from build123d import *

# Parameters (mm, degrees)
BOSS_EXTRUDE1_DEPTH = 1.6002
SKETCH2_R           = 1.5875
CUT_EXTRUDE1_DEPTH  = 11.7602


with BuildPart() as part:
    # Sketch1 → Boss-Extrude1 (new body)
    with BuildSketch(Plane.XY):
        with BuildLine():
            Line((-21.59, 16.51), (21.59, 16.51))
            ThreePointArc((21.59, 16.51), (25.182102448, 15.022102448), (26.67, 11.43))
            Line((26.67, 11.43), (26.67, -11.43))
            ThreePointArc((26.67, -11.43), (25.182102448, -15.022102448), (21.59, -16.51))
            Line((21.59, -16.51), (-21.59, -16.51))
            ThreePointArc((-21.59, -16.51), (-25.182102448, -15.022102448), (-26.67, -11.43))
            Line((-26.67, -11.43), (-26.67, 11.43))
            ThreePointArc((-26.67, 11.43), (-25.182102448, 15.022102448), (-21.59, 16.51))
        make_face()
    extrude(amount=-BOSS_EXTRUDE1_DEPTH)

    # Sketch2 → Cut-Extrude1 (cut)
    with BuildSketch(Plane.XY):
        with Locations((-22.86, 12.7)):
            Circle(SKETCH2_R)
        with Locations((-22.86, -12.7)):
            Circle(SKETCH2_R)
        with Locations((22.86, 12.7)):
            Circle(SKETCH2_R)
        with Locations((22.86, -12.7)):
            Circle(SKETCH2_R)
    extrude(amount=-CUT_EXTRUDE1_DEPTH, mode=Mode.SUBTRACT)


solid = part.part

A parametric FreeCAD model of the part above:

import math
import FreeCAD as App
import Part
import Sketcher

V = App.Vector
Q = App.Units.Quantity

doc = App.newDocument("Part")
body = doc.addObject("PartDesign::Body", "Body")

# Sketch on XY plane
sketch1 = body.newObject("Sketcher::SketchObject", "Sketch")
sketch1.AttachmentSupport = (doc.getObject("XY_Plane"), [""])
sketch1.MapMode = "FlatFace"
sketch1.addGeometry([
    Part.LineSegment(V(22, 17, 0), V(-22, 17, 0)),  # 0
    Part.ArcOfCircle(Part.Circle(V(-22, 11, 0), V(0, 0, 1), 5), math.radians(90), math.radians(180)),  # 1
    Part.LineSegment(V(-27, 11, 0), V(-27, -11, 0)),  # 2
    Part.ArcOfCircle(Part.Circle(V(-22, -11, 0), V(0, 0, 1), 5), math.radians(-180), math.radians(-90)),  # 3
    Part.LineSegment(V(-22, -17, 0), V(22, -17, 0)),  # 4
    Part.ArcOfCircle(Part.Circle(V(22, -11, 0), V(0, 0, 1), 5), math.radians(-90), math.radians(0)),  # 5
    Part.LineSegment(V(27, -11, 0), V(27, 11, 0)),  # 6
    Part.ArcOfCircle(Part.Circle(V(22, 11, 0), V(0, 0, 1), 5), math.radians(0), math.radians(90)),  # 7
], False)
sketch1.addConstraint([
    Sketcher.Constraint("Tangent", 0, 2, 1, 1),
    Sketcher.Constraint("Tangent", 1, 2, 2, 1),
    Sketcher.Constraint("Tangent", 2, 2, 3, 1),
    Sketcher.Constraint("Tangent", 3, 2, 4, 1),
    Sketcher.Constraint("Tangent", 4, 2, 5, 1),
    Sketcher.Constraint("Tangent", 5, 2, 6, 1),
    Sketcher.Constraint("Tangent", 6, 2, 7, 1),
    Sketcher.Constraint("Tangent", 7, 2, 0, 1),
    Sketcher.Constraint("Horizontal", 0),
    Sketcher.Constraint("Vertical", 2),
    Sketcher.Constraint("Horizontal", 4),
    Sketcher.Constraint("Vertical", 6),
    Sketcher.Constraint("Equal", 1, 3),
    Sketcher.Constraint("Equal", 3, 5),
    Sketcher.Constraint("Equal", 5, 7),
    Sketcher.Constraint("Symmetric", 1, 3, 5, 3, -1, 1),
    Sketcher.Constraint("Radius", 1, Q("0.2 in")),
    Sketcher.Constraint("DistanceX", 0, 2, 0, 1, Q("1.7 in")),
    Sketcher.Constraint("DistanceY", 2, 2, 2, 1, Q("0.9 in")),
])
pad1 = body.newObject("PartDesign::Pad", "Pad")
pad1.Profile = sketch1
pad1.Length = Q("0.063 in")
pad1.Reversed = True

# Sketch on XY plane
sketch2 = body.newObject("Sketcher::SketchObject", "Sketch001")
sketch2.AttachmentSupport = (doc.getObject("XY_Plane"), [""])
sketch2.MapMode = "FlatFace"
sketch2.addGeometry([
    Part.Circle(V(-22.9, 12.7, 0), V(0, 0, 1), 1.6),
    Part.Circle(V(-22.9, -12.7, 0), V(0, 0, 1), 1.6),
    Part.Circle(V(22.9, 12.7, 0), V(0, 0, 1), 1.6),
    Part.Circle(V(22.9, -12.7, 0), V(0, 0, 1), 1.6),
], False)
sketch2.addConstraint([
    Sketcher.Constraint("Equal", 0, 1),
    Sketcher.Constraint("Equal", 1, 2),
    Sketcher.Constraint("Equal", 2, 3),
    Sketcher.Constraint("Symmetric", 1, 3, 2, 3, -1, 1),
    Sketcher.Constraint("Symmetric", 0, 3, 3, 3, -1, 1),
    Sketcher.Constraint("Symmetric", 0, 3, 2, 3, -2),
    Sketcher.Constraint("Diameter", 0, Q("0.125 in")),
    Sketcher.Constraint("DistanceY", 1, 3, 0, 3, Q("1 in")),
    Sketcher.Constraint("DistanceX", 0, 3, -1, 1, Q("0.9 in")),
])
pocket1 = body.newObject("PartDesign::Pocket", "Pocket")
pocket1.Profile = sketch2
pocket1.Length = Q("0.463 in")

doc.recompute()
